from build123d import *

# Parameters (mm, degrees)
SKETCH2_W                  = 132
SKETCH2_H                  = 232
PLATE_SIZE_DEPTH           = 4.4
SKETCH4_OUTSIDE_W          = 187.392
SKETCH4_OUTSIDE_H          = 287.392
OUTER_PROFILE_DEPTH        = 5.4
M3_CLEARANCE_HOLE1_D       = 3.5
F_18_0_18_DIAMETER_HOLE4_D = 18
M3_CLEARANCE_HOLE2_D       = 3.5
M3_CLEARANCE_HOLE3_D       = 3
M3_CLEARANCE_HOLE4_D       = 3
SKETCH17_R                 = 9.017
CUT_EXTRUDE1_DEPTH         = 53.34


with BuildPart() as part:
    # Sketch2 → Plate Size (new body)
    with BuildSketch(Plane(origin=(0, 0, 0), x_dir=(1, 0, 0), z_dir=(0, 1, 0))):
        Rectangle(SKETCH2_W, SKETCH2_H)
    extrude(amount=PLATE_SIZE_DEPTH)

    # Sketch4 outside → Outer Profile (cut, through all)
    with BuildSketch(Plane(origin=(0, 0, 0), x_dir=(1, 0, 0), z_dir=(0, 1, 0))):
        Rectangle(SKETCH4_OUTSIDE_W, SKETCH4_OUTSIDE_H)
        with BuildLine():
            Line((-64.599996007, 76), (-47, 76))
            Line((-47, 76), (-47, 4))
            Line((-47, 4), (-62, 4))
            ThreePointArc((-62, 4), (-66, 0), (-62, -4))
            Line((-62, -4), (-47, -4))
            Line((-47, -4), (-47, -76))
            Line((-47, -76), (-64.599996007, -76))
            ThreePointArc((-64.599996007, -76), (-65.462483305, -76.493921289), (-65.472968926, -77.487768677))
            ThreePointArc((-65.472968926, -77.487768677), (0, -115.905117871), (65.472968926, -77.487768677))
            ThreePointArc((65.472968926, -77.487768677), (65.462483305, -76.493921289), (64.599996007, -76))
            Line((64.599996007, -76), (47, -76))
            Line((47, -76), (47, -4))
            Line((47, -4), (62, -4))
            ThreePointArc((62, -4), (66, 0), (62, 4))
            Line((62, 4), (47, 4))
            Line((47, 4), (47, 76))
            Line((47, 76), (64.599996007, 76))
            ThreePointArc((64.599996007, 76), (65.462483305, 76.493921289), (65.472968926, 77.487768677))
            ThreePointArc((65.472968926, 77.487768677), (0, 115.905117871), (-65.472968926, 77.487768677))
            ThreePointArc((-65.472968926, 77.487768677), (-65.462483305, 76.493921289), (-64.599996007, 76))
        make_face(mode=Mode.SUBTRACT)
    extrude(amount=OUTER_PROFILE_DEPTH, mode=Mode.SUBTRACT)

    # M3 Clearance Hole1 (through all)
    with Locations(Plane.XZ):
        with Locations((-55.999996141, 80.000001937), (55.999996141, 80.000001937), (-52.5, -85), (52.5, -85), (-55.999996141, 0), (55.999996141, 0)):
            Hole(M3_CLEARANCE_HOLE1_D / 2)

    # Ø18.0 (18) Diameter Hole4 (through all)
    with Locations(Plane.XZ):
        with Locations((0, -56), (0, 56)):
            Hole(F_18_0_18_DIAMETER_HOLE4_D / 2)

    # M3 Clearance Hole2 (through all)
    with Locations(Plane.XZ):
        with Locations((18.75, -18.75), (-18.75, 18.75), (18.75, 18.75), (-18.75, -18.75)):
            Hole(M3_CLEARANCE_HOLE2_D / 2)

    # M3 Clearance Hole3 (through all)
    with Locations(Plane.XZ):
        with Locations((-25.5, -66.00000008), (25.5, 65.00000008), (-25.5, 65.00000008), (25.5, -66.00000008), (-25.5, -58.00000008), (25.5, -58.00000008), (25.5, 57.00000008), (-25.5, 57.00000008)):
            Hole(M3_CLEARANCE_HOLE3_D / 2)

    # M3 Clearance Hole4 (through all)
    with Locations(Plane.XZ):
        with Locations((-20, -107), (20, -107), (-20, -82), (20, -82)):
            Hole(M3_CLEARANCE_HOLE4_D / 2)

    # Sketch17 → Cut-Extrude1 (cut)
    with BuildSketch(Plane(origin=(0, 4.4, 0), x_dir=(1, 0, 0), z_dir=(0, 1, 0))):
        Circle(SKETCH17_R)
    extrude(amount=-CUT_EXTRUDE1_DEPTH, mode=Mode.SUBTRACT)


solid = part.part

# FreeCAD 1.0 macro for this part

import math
import FreeCAD as App
import Part
import Sketcher

V = App.Vector
Q = App.Units.Quantity

doc = App.newDocument("Part")
body = doc.addObject("PartDesign::Body", "Body")

sketch1 = body.newObject("Sketcher::SketchObject", "Sketch")
sketch1.AttachmentSupport = (doc.getObject("XZ_Plane"), [""])
sketch1.MapMode = "FlatFace"
sketch1.addGeometry(Part.LineSegment(V(-66, -116, 0), V(-66, 116, 0)), False)
sketch1.addGeometry(Part.LineSegment(V(-66, 116, 0), V(66, 116, 0)), False)
sketch1.addGeometry(Part.LineSegment(V(66, 116, 0), V(66, -116, 0)), False)
sketch1.addGeometry(Part.LineSegment(V(66, -116, 0), V(-66, -116, 0)), False)
sketch1.addConstraint(Sketcher.Constraint("Coincident", 0, 2, 1, 1))
sketch1.addConstraint(Sketcher.Constraint("Coincident", 1, 2, 2, 1))
sketch1.addConstraint(Sketcher.Constraint("Coincident", 2, 2, 3, 1))
sketch1.addConstraint(Sketcher.Constraint("Coincident", 3, 2, 0, 1))
sketch1.addConstraint(Sketcher.Constraint("Vertical", 0))
sketch1.addConstraint(Sketcher.Constraint("Horizontal", 1))
sketch1.addConstraint(Sketcher.Constraint("Vertical", 2))
sketch1.addConstraint(Sketcher.Constraint("Horizontal", 3))
sketch1.addConstraint(Sketcher.Constraint("Symmetric", 0, 2, 2, 2, -1, 1))
sketch1.addConstraint(Sketcher.Constraint("DistanceX", 1, 1, 1, 2, Q("132 mm")))
sketch1.addConstraint(Sketcher.Constraint("DistanceY", 0, 1, 0, 2, Q("232 mm")))
pad1 = body.newObject("PartDesign::Pad", "Pad")
pad1.Profile = sketch1
pad1.Length = 4.4
pad1.Reversed = True

sketch2 = body.newObject("Sketcher::SketchObject", "Sketch001")
sketch2.AttachmentSupport = (doc.getObject("XZ_Plane"), [""])
sketch2.MapMode = "FlatFace"
sketch2.addGeometry(Part.LineSegment(V(-93.7, -143.7, 0), V(-93.7, 143.7, 0)), False)
sketch2.addGeometry(Part.LineSegment(V(-93.7, 143.7, 0), V(93.7, 143.7, 0)), False)
sketch2.addGeometry(Part.LineSegment(V(93.7, 143.7, 0), V(93.7, -143.7, 0)), False)
sketch2.addGeometry(Part.LineSegment(V(93.7, -143.7, 0), V(-93.7, -143.7, 0)), False)
sketch2.addGeometry(Part.LineSegment(V(-47, -76, 0), V(-64.6, -76, 0)), False)
sketch2.addGeometry(Part.ArcOfCircle(Part.Circle(V(-64.6, -77, 0), V(0, 0, 1), 1), math.radians(90), math.radians(209)), False)
sketch2.addGeometry(Part.ArcOfCircle(Part.Circle(V(0, -40.9, 0), V(0, 0, 1), 75), math.radians(-151), math.radians(-29)), False)
sketch2.addGeometry(Part.ArcOfCircle(Part.Circle(V(64.6, -77, 0), V(0, 0, 1), 1), math.radians(-29), math.radians(90)), False)
sketch2.addGeometry(Part.LineSegment(V(64.6, -76, 0), V(47, -76, 0)), False)
sketch2.addGeometry(Part.LineSegment(V(47, -76, 0), V(47, -4, 0)), False)
sketch2.addGeometry(Part.LineSegment(V(47, -4, 0), V(62, -4, 0)), False)
sketch2.addGeometry(Part.ArcOfCircle(Part.Circle(V(62, 0, 0), V(0, 0, 1), 4), math.radians(-90), math.radians(90)), False)
sketch2.addGeometry(Part.LineSegment(V(62, 4, 0), V(47, 4, 0)), False)
sketch2.addGeometry(Part.LineSegment(V(47, 4, 0), V(47, 76, 0)), False)
sketch2.addGeometry(Part.LineSegment(V(47, 76, 0), V(64.6, 76, 0)), False)
sketch2.addGeometry(Part.ArcOfCircle(Part.Circle(V(64.6, 77, 0), V(0, 0, 1), 1), math.radians(-90), math.radians(29)), False)
sketch2.addGeometry(Part.ArcOfCircle(Part.Circle(V(0, 40.9, 0), V(0, 0, 1), 75), math.radians(29), math.radians(151)), False)
sketch2.addGeometry(Part.ArcOfCircle(Part.Circle(V(-64.6, 77, 0), V(0, 0, 1), 1), math.radians(151), math.radians(270)), False)
sketch2.addGeometry(Part.LineSegment(V(-64.6, 76, 0), V(-47, 76, 0)), False)
sketch2.addGeometry(Part.LineSegment(V(-47, 76, 0), V(-47, 4, 0)), False)
sketch2.addGeometry(Part.LineSegment(V(-47, 4, 0), V(-62, 4, 0)), False)
sketch2.addGeometry(Part.ArcOfCircle(Part.Circle(V(-62, 0, 0), V(0, 0, 1), 4), math.radians(90), math.radians(270)), False)
sketch2.addGeometry(Part.LineSegment(V(-62, -4, 0), V(-47, -4, 0)), False)
sketch2.addGeometry(Part.LineSegment(V(-47, -4, 0), V(-47, -76, 0)), False)
sketch2.addConstraint(Sketcher.Constraint("Coincident", 0, 2, 1, 1))
sketch2.addConstraint(Sketcher.Constraint("Coincident", 1, 2, 2, 1))
sketch2.addConstraint(Sketcher.Constraint("Coincident", 2, 2, 3, 1))
sketch2.addConstraint(Sketcher.Constraint("Coincident", 3, 2, 0, 1))
sketch2.addConstraint(Sketcher.Constraint("Tangent", 4, 2, 5, 1))
sketch2.addConstraint(Sketcher.Constraint("Tangent", 5, 2, 6, 1))
sketch2.addConstraint(Sketcher.Constraint("Tangent", 6, 2, 7, 1))
sketch2.addConstraint(Sketcher.Constraint("Tangent", 7, 2, 8, 1))
sketch2.addConstraint(Sketcher.Constraint("Coincident", 8, 2, 9, 1))
sketch2.addConstraint(Sketcher.Constraint("Coincident", 9, 2, 10, 1))
sketch2.addConstraint(Sketcher.Constraint("Tangent", 10, 2, 11, 1))
sketch2.addConstraint(Sketcher.Constraint("Tangent", 11, 2, 12, 1))
sketch2.addConstraint(Sketcher.Constraint("Coincident", 12, 2, 13, 1))
sketch2.addConstraint(Sketcher.Constraint("Coincident", 13, 2, 14, 1))
sketch2.addConstraint(Sketcher.Constraint("Tangent", 14, 2, 15, 1))
sketch2.addConstraint(Sketcher.Constraint("Tangent", 15, 2, 16, 1))
sketch2.addConstraint(Sketcher.Constraint("Tangent", 16, 2, 17, 1))
sketch2.addConstraint(Sketcher.Constraint("Tangent", 17, 2, 18, 1))
sketch2.addConstraint(Sketcher.Constraint("Coincident", 18, 2, 19, 1))
sketch2.addConstraint(Sketcher.Constraint("Coincident", 19, 2, 20, 1))
sketch2.addConstraint(Sketcher.Constraint("Tangent", 20, 2, 21, 1))
sketch2.addConstraint(Sketcher.Constraint("Tangent", 21, 2, 22, 1))
sketch2.addConstraint(Sketcher.Constraint("Coincident", 22, 2, 23, 1))
sketch2.addConstraint(Sketcher.Constraint("Coincident", 23, 2, 4, 1))
sketch2.addConstraint(Sketcher.Constraint("Vertical", 0))
sketch2.addConstraint(Sketcher.Constraint("Horizontal", 1))
sketch2.addConstraint(Sketcher.Constraint("Vertical", 2))
sketch2.addConstraint(Sketcher.Constraint("Horizontal", 3))
sketch2.addConstraint(Sketcher.Constraint("Horizontal", 4))
sketch2.addConstraint(Sketcher.Constraint("Horizontal", 8))
sketch2.addConstraint(Sketcher.Constraint("Vertical", 9))
sketch2.addConstraint(Sketcher.Constraint("Horizontal", 10))
sketch2.addConstraint(Sketcher.Constraint("Horizontal", 12))
sketch2.addConstraint(Sketcher.Constraint("Vertical", 13))
sketch2.addConstraint(Sketcher.Constraint("Horizontal", 14))
sketch2.addConstraint(Sketcher.Constraint("Horizontal", 18))
sketch2.addConstraint(Sketcher.Constraint("Vertical", 19))
sketch2.addConstraint(Sketcher.Constraint("Horizontal", 20))
sketch2.addConstraint(Sketcher.Constraint("Horizontal", 22))
sketch2.addConstraint(Sketcher.Constraint("Vertical", 23))
sketch2.addConstraint(Sketcher.Constraint("Equal", 5, 7))
sketch2.addConstraint(Sketcher.Constraint("Equal", 7, 15))
sketch2.addConstraint(Sketcher.Constraint("Equal", 6, 16))
sketch2.addConstraint(Sketcher.Constraint("Equal", 15, 17))
sketch2.addConstraint(Sketcher.Constraint("Equal", 11, 21))
sketch2.addConstraint(Sketcher.Constraint("Symmetric", 5, 3, 15, 3, -1, 1))
sketch2.addConstraint(Sketcher.Constraint("Symmetric", 7, 3, 17, 3, -1, 1))
sketch2.addConstraint(Sketcher.Constraint("Symmetric", 11, 3, 21, 3, -1, 1))
sketch2.addConstraint(Sketcher.Constraint("Symmetric", 0, 2, 2, 2, -1, 1))
sketch2.addConstraint(Sketcher.Constraint("Symmetric", 5, 3, 7, 3, -2))
sketch2.addConstraint(Sketcher.Constraint("Symmetric", 12, 2, 19, 2, -2))
sketch2.addConstraint(Sketcher.Constraint("Vertical", 9, 2, 12, 2))
sketch2.addConstraint(Sketcher.Constraint("Vertical", 19, 2, 22, 2))
sketch2.addConstraint(Sketcher.Constraint("Radius", 5, Q("1 mm")))
sketch2.addConstraint(Sketcher.Constraint("Radius", 6, Q("75 mm")))
sketch2.addConstraint(Sketcher.Constraint("Radius", 11, Q("4 mm")))
sketch2.addConstraint(Sketcher.Constraint("DistanceX", 10, 1, 10, 2, Q("15 mm")))
sketch2.addConstraint(Sketcher.Constraint("DistanceY", 9, 1, 9, 2, Q("72 mm")))
sketch2.addConstraint(Sketcher.Constraint("DistanceX", -1, 1, 11, 3, Q("62 mm")))
sketch2.addConstraint(Sketcher.Constraint("DistanceX", 1, 1, 1, 2, Q("187.392 mm")))
sketch2.addConstraint(Sketcher.Constraint("DistanceY", 0, 1, 0, 2, Q("287.392 mm")))
sketch2.addConstraint(Sketcher.Constraint("DistanceX", 4, 2, 4, 1, Q("17.599996 mm")))
pocket1 = body.newObject("PartDesign::Pocket", "Pocket")
pocket1.Profile = sketch2
pocket1.Type = "ThroughAll"

sketch3 = body.newObject("Sketcher::SketchObject", "Sketch002")
sketch3.AttachmentSupport = (doc.getObject("XZ_Plane"), [""])
sketch3.MapMode = "FlatFace"
sketch3.addGeometry(Part.Circle(V(-56, 80, 0), V(0, 0, 1), 1.8), False)
sketch3.addGeometry(Part.Circle(V(56, 80, 0), V(0, 0, 1), 1.8), False)
sketch3.addGeometry(Part.Circle(V(-52.5, -85, 0), V(0, 0, 1), 1.8), False)
sketch3.addGeometry(Part.Circle(V(52.5, -85, 0), V(0, 0, 1), 1.8), False)
sketch3.addGeometry(Part.Circle(V(-56, 0, 0), V(0, 0, 1), 1.8), False)
sketch3.addGeometry(Part.Circle(V(56, 0, 0), V(0, 0, 1), 1.8), False)
sketch3.addConstraint(Sketcher.Constraint("Equal", 0, 1))
sketch3.addConstraint(Sketcher.Constraint("Equal", 1, 2))
sketch3.addConstraint(Sketcher.Constraint("Equal", 2, 3))
sketch3.addConstraint(Sketcher.Constraint("Equal", 3, 4))
sketch3.addConstraint(Sketcher.Constraint("Equal", 4, 5))
sketch3.addConstraint(Sketcher.Constraint("Symmetric", 4, 3, 5, 3, -1, 1))
sketch3.addConstraint(Sketcher.Constraint("Symmetric", 0, 3, 1, 3, -2))
sketch3.addConstraint(Sketcher.Constraint("Symmetric", 2, 3, 3, 3, -2))
sketch3.addConstraint(Sketcher.Constraint("PointOnObject", 4, 3, -1))
sketch3.addConstraint(Sketcher.Constraint("Vertical", 0, 3, 4, 3))
sketch3.addConstraint(Sketcher.Constraint("Diameter", 0, Q("3.5 mm")))
sketch3.addConstraint(Sketcher.Constraint("DistanceY", -1, 1, 0, 3, Q("80.000002 mm")))
sketch3.addConstraint(Sketcher.Constraint("DistanceY", 2, 3, -1, 1, Q("85 mm")))
sketch3.addConstraint(Sketcher.Constraint("DistanceX", 2, 3, 3, 3, Q("105 mm")))
sketch3.addConstraint(Sketcher.Constraint("DistanceX", 0, 3, -1, 1, Q("55.999996 mm")))
doc.recompute()
hole = body.newObject("PartDesign::Hole", "Hole")
hole.Profile = sketch3
hole.ThreadType = "None"
hole.Diameter = 3.5
hole.DepthType = "ThroughAll"

sketch4 = body.newObject("Sketcher::SketchObject", "Sketch003")
sketch4.AttachmentSupport = (doc.getObject("XZ_Plane"), [""])
sketch4.MapMode = "FlatFace"
sketch4.addGeometry(Part.Circle(V(0, -56, 0), V(0, 0, 1), 9), False)
sketch4.addGeometry(Part.Circle(V(0, 56, 0), V(0, 0, 1), 9), False)
sketch4.addConstraint(Sketcher.Constraint("Equal", 0, 1))
sketch4.addConstraint(Sketcher.Constraint("Symmetric", 0, 3, 1, 3, -1, 1))
sketch4.addConstraint(Sketcher.Constraint("PointOnObject", 0, 3, -2))
sketch4.addConstraint(Sketcher.Constraint("Diameter", 0, Q("18 mm")))
sketch4.addConstraint(Sketcher.Constraint("DistanceY", 0, 3, -1, 1, Q("56 mm")))
doc.recompute()
hole2 = body.newObject("PartDesign::Hole", "Hole001")
hole2.Profile = sketch4
hole2.ThreadType = "None"
hole2.Diameter = 18
hole2.DepthType = "ThroughAll"

sketch5 = body.newObject("Sketcher::SketchObject", "Sketch004")
sketch5.AttachmentSupport = (doc.getObject("XZ_Plane"), [""])
sketch5.MapMode = "FlatFace"
sketch5.addGeometry(Part.Circle(V(18.8, -18.8, 0), V(0, 0, 1), 1.8), False)
sketch5.addGeometry(Part.Circle(V(-18.8, 18.8, 0), V(0, 0, 1), 1.8), False)
sketch5.addGeometry(Part.Circle(V(18.8, 18.8, 0), V(0, 0, 1), 1.8), False)
sketch5.addGeometry(Part.Circle(V(-18.8, -18.8, 0), V(0, 0, 1), 1.8), False)
sketch5.addConstraint(Sketcher.Constraint("Equal", 0, 1))
sketch5.addConstraint(Sketcher.Constraint("Equal", 1, 2))
sketch5.addConstraint(Sketcher.Constraint("Equal", 2, 3))
sketch5.addConstraint(Sketcher.Constraint("Symmetric", 0, 3, 1, 3, -1, 1))
sketch5.addConstraint(Sketcher.Constraint("Symmetric", 2, 3, 3, 3, -1, 1))
sketch5.addConstraint(Sketcher.Constraint("Symmetric", 1, 3, 2, 3, -2))
sketch5.addConstraint(Sketcher.Constraint("Diameter", 0, Q("3.5 mm")))
sketch5.addConstraint(Sketcher.Constraint("DistanceX", 1, 3, 0, 3, Q("37.5 mm")))
sketch5.addConstraint(Sketcher.Constraint("DistanceY", 0, 3, 1, 3, Q("37.5 mm")))
doc.recompute()
hole3 = body.newObject("PartDesign::Hole", "Hole002")
hole3.Profile = sketch5
hole3.ThreadType = "None"
hole3.Diameter = 3.5
hole3.DepthType = "ThroughAll"

sketch6 = body.newObject("Sketcher::SketchObject", "Sketch005")
sketch6.AttachmentSupport = (doc.getObject("XZ_Plane"), [""])
sketch6.MapMode = "FlatFace"
sketch6.addGeometry(Part.Circle(V(-25.5, -66, 0), V(0, 0, 1), 1.5), False)
sketch6.addGeometry(Part.Circle(V(25.5, 65, 0), V(0, 0, 1), 1.5), False)
sketch6.addGeometry(Part.Circle(V(-25.5, 65, 0), V(0, 0, 1), 1.5), False)
sketch6.addGeometry(Part.Circle(V(25.5, -66, 0), V(0, 0, 1), 1.5), False)
sketch6.addGeometry(Part.Circle(V(-25.5, -58, 0), V(0, 0, 1), 1.5), False)
sketch6.addGeometry(Part.Circle(V(25.5, -58, 0), V(0, 0, 1), 1.5), False)
sketch6.addGeometry(Part.Circle(V(25.5, 57, 0), V(0, 0, 1), 1.5), False)
sketch6.addGeometry(Part.Circle(V(-25.5, 57, 0), V(0, 0, 1), 1.5), False)
sketch6.addConstraint(Sketcher.Constraint("Equal", 0, 1))
sketch6.addConstraint(Sketcher.Constraint("Equal", 1, 2))
sketch6.addConstraint(Sketcher.Constraint("Equal", 2, 3))
sketch6.addConstraint(Sketcher.Constraint("Equal", 3, 4))
sketch6.addConstraint(Sketcher.Constraint("Equal", 4, 5))
sketch6.addConstraint(Sketcher.Constraint("Equal", 5, 6))
sketch6.addConstraint(Sketcher.Constraint("Equal", 6, 7))
sketch6.addConstraint(Sketcher.Constraint("Symmetric", 1, 3, 2, 3, -2))
sketch6.addConstraint(Sketcher.Constraint("Symmetric", 0, 3, 3, 3, -2))
sketch6.addConstraint(Sketcher.Constraint("Symmetric", 4, 3, 5, 3, -2))
sketch6.addConstraint(Sketcher.Constraint("Symmetric", 6, 3, 7, 3, -2))
sketch6.addConstraint(Sketcher.Constraint("Vertical", 0, 3, 2, 3))
sketch6.addConstraint(Sketcher.Constraint("Vertical", 2, 3, 4, 3))
sketch6.addConstraint(Sketcher.Constraint("Vertical", 5, 3, 6, 3))
sketch6.addConstraint(Sketcher.Constraint("Diameter", 0, Q("3 mm")))
sketch6.addConstraint(Sketcher.Constraint("DistanceY", 0, 3, -1, 1, Q("66 mm")))
sketch6.addConstraint(Sketcher.Constraint("DistanceY", -1, 1, 1, 3, Q("65 mm")))
sketch6.addConstraint(Sketcher.Constraint("DistanceY", 4, 3, -1, 1, Q("58 mm")))
sketch6.addConstraint(Sketcher.Constraint("DistanceY", -1, 1, 6, 3, Q("57 mm")))
sketch6.addConstraint(Sketcher.Constraint("DistanceX", 0, 3, 1, 3, Q("51 mm")))
doc.recompute()
hole4 = body.newObject("PartDesign::Hole", "Hole003")
hole4.Profile = sketch6
hole4.ThreadType = "None"
hole4.Diameter = 3
hole4.DepthType = "ThroughAll"

sketch7 = body.newObject("Sketcher::SketchObject", "Sketch006")
sketch7.AttachmentSupport = (doc.getObject("XZ_Plane"), [""])
sketch7.MapMode = "FlatFace"
sketch7.addGeometry(Part.Circle(V(-20, -107, 0), V(0, 0, 1), 1.5), False)
sketch7.addGeometry(Part.Circle(V(20, -107, 0), V(0, 0, 1), 1.5), False)
sketch7.addGeometry(Part.Circle(V(-20, -82, 0), V(0, 0, 1), 1.5), False)
sketch7.addGeometry(Part.Circle(V(20, -82, 0), V(0, 0, 1), 1.5), False)
sketch7.addConstraint(Sketcher.Constraint("Equal", 0, 1))
sketch7.addConstraint(Sketcher.Constraint("Equal", 1, 2))
sketch7.addConstraint(Sketcher.Constraint("Equal", 2, 3))
sketch7.addConstraint(Sketcher.Constraint("Symmetric", 0, 3, 1, 3, -2))
sketch7.addConstraint(Sketcher.Constraint("Symmetric", 2, 3, 3, 3, -2))
sketch7.addConstraint(Sketcher.Constraint("Vertical", 0, 3, 2, 3))
sketch7.addConstraint(Sketcher.Constraint("Diameter", 0, Q("3 mm")))
sketch7.addConstraint(Sketcher.Constraint("DistanceX", 0, 3, -1, 1, Q("20 mm")))
sketch7.addConstraint(Sketcher.Constraint("DistanceY", 0, 3, -1, 1, Q("107 mm")))
sketch7.addConstraint(Sketcher.Constraint("DistanceY", 2, 3, -1, 1, Q("82 mm")))
doc.recompute()
hole5 = body.newObject("PartDesign::Hole", "Hole004")
hole5.Profile = sketch7
hole5.ThreadType = "None"
hole5.Diameter = 3
hole5.DepthType = "ThroughAll"

sketch8 = body.newObject("Sketcher::SketchObject", "Sketch007")
sketch8.AttachmentSupport = (doc.getObject("XZ_Plane"), [""])
sketch8.MapMode = "FlatFace"
sketch8.AttachmentOffset = App.Placement(V(0, 0, -4.4), App.Rotation())
sketch8.addGeometry(Part.Circle(V(0, 0, 0), V(0, 0, 1), 9), False)
sketch8.addConstraint(Sketcher.Constraint("Coincident", 0, 3, -1, 1))
sketch8.addConstraint(Sketcher.Constraint("Diameter", 0, Q("18.034 mm")))
pocket2 = body.newObject("PartDesign::Pocket", "Pocket001")
pocket2.Profile = sketch8
pocket2.Length = 53.34
pocket2.Reversed = True

doc.recompute()
